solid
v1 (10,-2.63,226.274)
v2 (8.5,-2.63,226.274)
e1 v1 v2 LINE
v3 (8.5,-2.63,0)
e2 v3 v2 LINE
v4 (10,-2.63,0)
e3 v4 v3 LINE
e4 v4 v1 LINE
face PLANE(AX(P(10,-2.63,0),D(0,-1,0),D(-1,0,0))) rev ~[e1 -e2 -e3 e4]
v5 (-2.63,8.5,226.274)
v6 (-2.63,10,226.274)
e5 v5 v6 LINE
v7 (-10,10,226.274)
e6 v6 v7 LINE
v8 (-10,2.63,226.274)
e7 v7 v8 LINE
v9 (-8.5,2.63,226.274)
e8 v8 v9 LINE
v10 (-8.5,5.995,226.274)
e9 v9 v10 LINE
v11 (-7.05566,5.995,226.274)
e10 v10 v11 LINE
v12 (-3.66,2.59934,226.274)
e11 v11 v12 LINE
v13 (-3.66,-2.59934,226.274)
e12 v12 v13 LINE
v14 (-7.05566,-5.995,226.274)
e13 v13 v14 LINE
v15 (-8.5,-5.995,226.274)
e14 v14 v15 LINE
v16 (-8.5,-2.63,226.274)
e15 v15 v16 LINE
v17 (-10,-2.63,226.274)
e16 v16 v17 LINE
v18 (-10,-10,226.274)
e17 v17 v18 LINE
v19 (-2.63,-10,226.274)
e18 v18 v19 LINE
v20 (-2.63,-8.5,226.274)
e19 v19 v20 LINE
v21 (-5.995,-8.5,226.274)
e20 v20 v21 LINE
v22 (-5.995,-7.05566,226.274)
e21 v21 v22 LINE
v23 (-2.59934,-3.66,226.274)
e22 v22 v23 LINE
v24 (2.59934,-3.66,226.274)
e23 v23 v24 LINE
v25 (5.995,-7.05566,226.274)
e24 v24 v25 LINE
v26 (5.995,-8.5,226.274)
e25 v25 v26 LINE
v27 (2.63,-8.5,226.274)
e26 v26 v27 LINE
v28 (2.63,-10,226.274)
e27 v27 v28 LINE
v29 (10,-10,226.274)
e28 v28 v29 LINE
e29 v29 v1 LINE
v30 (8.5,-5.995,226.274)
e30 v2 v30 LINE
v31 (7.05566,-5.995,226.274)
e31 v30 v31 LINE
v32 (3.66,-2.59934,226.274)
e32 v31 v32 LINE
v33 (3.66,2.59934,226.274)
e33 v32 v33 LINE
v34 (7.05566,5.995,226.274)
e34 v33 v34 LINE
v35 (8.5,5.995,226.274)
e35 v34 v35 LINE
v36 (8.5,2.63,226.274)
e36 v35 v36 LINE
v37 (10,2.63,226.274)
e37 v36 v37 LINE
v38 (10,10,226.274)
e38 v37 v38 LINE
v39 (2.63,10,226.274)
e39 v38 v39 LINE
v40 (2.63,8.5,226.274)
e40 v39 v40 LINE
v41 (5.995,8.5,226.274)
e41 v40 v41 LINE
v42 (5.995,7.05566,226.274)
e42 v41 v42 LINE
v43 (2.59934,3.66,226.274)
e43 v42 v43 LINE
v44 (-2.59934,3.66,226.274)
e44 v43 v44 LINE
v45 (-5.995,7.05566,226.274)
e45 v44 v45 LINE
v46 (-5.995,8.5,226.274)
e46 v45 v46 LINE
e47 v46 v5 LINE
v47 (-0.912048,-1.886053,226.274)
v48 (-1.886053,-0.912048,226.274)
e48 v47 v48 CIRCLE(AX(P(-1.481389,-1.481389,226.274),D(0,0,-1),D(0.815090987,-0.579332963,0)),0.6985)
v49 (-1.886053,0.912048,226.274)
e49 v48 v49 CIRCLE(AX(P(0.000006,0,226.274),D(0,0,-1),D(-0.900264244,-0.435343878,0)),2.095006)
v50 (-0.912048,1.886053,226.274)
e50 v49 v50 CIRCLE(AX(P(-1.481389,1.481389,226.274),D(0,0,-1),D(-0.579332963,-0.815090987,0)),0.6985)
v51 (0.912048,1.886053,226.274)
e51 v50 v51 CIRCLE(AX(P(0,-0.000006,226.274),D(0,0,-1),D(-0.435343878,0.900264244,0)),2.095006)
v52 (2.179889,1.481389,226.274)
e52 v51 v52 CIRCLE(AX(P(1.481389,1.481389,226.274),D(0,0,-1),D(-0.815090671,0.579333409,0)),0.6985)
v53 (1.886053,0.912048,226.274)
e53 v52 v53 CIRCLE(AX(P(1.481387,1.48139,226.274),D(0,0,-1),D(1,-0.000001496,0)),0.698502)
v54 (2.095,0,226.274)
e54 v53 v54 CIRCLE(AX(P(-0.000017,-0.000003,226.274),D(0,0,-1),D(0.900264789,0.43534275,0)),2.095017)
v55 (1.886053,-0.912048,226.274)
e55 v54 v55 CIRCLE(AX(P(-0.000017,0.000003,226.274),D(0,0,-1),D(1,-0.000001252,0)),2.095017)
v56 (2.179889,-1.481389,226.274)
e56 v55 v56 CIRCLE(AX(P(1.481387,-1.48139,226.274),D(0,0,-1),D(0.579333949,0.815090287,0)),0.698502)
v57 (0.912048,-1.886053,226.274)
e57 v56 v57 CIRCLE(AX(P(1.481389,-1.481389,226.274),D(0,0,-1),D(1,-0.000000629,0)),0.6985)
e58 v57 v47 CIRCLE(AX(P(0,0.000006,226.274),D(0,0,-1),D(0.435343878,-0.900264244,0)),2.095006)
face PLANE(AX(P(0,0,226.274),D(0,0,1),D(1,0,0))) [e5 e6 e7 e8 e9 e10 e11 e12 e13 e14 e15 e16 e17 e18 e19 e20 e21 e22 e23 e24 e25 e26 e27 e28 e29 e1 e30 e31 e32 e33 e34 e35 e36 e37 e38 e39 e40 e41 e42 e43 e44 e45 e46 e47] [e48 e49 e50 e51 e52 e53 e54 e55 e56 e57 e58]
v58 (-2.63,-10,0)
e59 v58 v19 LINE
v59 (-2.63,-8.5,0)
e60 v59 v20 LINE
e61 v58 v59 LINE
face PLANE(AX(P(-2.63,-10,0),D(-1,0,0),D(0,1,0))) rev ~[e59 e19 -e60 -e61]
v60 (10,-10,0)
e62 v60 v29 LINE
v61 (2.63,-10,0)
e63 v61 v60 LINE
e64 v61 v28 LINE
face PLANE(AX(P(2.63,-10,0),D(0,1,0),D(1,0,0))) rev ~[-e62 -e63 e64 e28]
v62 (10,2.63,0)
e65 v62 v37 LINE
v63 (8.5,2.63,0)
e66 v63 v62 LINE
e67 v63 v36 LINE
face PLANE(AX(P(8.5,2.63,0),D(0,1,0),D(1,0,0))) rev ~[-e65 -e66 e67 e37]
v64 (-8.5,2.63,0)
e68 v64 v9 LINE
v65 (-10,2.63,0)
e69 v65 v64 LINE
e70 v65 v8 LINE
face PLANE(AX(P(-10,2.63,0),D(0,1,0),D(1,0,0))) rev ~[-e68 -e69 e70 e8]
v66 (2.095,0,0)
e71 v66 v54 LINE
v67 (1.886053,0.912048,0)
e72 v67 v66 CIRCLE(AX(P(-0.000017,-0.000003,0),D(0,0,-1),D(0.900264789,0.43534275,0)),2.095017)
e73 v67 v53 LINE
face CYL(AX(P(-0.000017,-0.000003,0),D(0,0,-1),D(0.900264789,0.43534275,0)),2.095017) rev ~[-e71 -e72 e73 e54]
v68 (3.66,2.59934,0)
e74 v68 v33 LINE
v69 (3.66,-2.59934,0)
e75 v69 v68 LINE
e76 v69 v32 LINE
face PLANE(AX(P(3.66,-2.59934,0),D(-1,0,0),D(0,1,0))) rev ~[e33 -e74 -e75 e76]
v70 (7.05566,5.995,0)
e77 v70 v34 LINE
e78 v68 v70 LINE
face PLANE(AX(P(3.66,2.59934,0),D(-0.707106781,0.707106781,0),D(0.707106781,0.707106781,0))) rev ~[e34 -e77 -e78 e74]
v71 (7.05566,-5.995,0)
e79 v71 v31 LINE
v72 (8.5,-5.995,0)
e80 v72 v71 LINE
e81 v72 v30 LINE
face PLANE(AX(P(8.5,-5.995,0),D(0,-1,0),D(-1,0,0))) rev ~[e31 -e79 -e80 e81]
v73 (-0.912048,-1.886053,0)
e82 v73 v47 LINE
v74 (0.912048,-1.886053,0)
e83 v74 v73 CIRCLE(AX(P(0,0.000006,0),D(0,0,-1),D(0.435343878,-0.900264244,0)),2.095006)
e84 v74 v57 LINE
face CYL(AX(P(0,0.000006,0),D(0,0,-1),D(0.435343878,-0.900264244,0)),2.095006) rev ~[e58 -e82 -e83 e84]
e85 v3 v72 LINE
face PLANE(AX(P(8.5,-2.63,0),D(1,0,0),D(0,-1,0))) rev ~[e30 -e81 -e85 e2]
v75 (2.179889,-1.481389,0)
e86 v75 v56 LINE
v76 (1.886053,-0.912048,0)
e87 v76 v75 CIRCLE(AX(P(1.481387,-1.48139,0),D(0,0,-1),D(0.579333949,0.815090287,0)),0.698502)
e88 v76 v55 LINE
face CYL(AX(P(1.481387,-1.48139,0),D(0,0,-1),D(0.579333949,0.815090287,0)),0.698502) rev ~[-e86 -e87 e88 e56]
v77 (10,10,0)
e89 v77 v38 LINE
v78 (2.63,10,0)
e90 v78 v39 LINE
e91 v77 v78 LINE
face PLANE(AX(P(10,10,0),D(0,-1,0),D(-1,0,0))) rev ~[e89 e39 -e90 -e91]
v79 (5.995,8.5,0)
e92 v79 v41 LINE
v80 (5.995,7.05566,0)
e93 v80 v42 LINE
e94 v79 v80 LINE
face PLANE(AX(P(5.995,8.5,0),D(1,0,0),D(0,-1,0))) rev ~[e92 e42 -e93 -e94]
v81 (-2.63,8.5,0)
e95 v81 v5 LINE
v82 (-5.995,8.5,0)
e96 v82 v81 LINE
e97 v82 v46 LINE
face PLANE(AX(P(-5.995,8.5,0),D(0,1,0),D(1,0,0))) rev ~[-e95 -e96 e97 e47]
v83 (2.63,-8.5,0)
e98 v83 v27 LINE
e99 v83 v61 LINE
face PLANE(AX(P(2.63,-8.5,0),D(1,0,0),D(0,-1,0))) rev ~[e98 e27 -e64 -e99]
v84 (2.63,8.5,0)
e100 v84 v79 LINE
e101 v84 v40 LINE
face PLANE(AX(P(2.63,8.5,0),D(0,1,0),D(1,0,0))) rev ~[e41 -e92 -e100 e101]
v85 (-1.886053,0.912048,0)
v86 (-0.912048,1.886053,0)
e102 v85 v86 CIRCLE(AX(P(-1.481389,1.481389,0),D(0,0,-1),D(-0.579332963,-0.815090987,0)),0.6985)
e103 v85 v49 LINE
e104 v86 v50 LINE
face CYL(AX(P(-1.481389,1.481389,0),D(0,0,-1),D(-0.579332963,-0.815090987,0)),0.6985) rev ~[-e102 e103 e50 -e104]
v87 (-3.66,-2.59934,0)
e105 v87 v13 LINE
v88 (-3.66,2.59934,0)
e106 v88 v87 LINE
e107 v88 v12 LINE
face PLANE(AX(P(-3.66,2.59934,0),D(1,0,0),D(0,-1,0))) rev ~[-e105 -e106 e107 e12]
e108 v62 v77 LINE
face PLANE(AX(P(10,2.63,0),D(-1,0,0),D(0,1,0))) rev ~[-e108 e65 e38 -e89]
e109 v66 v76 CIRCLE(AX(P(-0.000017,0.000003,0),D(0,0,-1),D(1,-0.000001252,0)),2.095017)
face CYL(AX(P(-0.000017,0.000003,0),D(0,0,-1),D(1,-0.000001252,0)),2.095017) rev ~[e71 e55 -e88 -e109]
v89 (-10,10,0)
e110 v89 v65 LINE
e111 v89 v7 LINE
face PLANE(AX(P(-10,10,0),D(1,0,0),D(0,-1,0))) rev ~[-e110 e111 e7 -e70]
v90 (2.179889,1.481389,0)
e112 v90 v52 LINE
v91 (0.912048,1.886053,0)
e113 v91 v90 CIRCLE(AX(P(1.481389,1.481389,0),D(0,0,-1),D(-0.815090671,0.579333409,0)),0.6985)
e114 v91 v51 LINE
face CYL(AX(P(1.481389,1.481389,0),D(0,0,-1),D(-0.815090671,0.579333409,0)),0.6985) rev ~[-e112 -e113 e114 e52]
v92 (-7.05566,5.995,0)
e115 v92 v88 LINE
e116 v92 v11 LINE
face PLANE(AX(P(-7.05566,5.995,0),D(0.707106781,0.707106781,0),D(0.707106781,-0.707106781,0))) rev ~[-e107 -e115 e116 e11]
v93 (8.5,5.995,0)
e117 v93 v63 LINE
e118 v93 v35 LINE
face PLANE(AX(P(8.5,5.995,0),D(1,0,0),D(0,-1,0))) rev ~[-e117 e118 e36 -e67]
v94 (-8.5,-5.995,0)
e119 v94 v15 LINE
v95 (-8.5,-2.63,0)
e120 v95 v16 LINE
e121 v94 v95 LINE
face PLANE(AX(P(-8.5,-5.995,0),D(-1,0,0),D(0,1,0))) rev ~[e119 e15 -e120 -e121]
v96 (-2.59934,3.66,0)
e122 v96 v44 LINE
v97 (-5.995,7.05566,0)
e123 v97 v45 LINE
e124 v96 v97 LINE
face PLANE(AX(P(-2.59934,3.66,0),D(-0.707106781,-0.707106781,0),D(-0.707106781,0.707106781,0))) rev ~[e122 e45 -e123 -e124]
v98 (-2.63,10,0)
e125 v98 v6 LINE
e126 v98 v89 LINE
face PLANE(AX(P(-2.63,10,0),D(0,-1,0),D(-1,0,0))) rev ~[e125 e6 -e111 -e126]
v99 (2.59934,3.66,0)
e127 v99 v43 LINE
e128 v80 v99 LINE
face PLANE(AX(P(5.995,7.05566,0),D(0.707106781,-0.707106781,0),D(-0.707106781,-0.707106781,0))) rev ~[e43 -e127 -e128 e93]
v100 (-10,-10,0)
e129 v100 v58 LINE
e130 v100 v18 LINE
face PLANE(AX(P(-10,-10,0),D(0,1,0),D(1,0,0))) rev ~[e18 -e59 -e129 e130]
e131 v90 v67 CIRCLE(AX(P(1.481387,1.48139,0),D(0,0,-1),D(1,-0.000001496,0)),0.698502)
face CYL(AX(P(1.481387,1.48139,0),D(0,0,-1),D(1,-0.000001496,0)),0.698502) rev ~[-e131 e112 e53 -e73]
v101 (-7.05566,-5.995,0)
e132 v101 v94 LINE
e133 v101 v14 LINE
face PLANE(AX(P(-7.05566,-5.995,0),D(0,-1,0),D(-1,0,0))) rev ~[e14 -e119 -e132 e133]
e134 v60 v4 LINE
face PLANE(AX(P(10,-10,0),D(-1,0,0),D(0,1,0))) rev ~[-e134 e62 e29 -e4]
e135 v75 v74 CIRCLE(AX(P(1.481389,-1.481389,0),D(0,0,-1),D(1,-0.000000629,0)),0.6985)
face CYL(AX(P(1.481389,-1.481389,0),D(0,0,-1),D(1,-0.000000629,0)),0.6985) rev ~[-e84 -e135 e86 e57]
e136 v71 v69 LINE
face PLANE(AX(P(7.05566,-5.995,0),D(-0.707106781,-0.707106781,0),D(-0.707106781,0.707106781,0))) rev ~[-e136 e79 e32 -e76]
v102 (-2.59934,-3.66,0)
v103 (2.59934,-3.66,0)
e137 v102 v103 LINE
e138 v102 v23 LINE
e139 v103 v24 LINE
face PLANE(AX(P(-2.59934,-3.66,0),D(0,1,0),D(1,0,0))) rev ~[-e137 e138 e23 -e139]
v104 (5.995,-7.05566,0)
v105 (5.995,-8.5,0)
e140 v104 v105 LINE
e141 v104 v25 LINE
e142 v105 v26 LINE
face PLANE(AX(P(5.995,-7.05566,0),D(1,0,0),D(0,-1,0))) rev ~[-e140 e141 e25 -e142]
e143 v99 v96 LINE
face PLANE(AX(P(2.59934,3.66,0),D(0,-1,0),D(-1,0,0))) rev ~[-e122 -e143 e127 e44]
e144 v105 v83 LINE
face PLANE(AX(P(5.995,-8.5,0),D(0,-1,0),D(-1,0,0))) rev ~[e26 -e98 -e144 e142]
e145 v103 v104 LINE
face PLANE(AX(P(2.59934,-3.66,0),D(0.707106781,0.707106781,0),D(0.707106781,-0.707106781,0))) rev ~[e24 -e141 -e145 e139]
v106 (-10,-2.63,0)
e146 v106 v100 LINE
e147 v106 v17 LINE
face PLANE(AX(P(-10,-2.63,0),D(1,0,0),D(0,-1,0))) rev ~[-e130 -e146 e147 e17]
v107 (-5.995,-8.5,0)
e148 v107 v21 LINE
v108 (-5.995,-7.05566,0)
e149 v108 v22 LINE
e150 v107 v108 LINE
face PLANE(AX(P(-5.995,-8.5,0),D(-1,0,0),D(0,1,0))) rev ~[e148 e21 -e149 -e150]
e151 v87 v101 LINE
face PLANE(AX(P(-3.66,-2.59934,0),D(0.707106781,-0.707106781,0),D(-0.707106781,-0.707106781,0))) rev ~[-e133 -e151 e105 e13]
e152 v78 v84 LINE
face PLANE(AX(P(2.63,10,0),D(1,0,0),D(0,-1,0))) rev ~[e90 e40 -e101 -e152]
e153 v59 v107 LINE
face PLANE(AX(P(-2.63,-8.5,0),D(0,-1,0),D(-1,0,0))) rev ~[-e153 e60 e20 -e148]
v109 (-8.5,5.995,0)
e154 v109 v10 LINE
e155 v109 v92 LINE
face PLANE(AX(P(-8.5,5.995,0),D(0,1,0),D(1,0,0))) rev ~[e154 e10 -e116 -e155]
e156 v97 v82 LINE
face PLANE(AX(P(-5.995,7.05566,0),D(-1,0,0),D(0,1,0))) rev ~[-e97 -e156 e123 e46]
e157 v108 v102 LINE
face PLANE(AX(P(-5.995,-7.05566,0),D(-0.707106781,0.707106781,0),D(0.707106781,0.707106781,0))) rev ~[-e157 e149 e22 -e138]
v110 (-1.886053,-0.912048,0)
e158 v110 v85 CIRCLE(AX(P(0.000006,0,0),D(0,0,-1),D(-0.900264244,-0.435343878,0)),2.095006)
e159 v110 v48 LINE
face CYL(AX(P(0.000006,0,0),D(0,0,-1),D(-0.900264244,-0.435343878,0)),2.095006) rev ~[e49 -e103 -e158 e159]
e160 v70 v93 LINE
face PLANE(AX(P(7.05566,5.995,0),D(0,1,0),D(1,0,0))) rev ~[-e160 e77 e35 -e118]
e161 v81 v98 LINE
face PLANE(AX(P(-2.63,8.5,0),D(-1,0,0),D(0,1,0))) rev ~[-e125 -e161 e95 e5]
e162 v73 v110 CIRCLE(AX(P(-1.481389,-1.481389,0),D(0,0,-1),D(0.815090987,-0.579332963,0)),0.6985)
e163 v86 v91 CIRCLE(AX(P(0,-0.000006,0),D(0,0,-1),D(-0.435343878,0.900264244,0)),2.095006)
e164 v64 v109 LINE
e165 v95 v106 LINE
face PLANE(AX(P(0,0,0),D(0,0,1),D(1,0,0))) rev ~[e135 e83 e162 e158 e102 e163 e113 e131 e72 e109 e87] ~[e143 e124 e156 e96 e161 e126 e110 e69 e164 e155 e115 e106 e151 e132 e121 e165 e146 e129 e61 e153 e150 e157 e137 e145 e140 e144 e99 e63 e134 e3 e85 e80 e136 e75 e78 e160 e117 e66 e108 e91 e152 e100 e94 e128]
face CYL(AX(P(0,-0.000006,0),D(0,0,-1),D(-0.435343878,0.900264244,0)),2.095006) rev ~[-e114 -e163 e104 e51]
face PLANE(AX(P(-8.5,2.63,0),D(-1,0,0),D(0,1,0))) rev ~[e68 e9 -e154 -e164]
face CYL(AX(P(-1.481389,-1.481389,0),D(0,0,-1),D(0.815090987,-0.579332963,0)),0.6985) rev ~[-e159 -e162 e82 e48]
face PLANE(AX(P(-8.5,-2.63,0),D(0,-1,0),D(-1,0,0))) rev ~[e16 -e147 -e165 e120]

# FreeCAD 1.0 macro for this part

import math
import FreeCAD as App
import Part
import Sketcher
Q = App.Units.Quantity


def add_polygon(sketch, points):
    """Adds a closed chain of lines whose ends are joined by coincident constraints."""
    first, n = sketch.GeometryCount, len(points)
    for a, b in zip(points, points[1:] + points[:1]):
        sketch.addGeometry(Part.LineSegment(App.Vector(*a, 0), App.Vector(*b, 0)), False)
    for i in range(n):
        sketch.addConstraint(Sketcher.Constraint("Coincident", first + i, 2, first + (i + 1) % n, 1))

doc = App.newDocument("Part")
body = doc.addObject("PartDesign::Body", "Body")

# Sketch on XY plane
sketch1 = doc.addObject("Sketcher::SketchObject", "Sketch")
body.addObject(sketch1)
sketch1.AttachmentSupport = (doc.XY_Plane, [""])
sketch1.MapMode = "FlatFace"
add_polygon(sketch1, [(10, 2.63), (10, 10), (2.63, 10), (2.63, 8.5), (5.995, 8.5), (5.995, 7.05566), (2.59934, 3.66), (-2.59934, 3.66), (-5.995, 7.05566), (-5.995, 8.5), (-2.63, 8.5), (-2.63, 10), (-10, 10), (-10, 2.63), (-8.5, 2.63), (-8.5, 5.995), (-7.05566, 5.995), (-3.66, 2.59934), (-3.66, -2.59934), (-7.05566, -5.995), (-8.5, -5.995), (-8.5, -2.63), (-10, -2.63), (-10, -10), (-2.63, -10), (-2.63, -8.5), (-5.995, -8.5), (-5.995, -7.05566), (-2.59934, -3.66), (2.59934, -3.66), (5.995, -7.05566), (5.995, -8.5), (2.63, -8.5), (2.63, -10), (10, -10), (10, -2.63), (8.5, -2.63), (8.5, -5.995), (7.05566, -5.995), (3.66, -2.59934), (3.66, 2.59934), (7.05566, 5.995), (8.5, 5.995), (8.5, 2.63)])  # lines 0-43
sketch1.addGeometry(Part.ArcOfCircle(Part.Circle(App.Vector(1.481387, 1.48139, 0), App.Vector(0, 0, 1), 0.698502), math.radians(-54.59629), math.radians(-0.000086)), False)  # 44
sketch1.addGeometry(Part.ArcOfCircle(Part.Circle(App.Vector(-0.000017, -0.000003, 0), App.Vector(0, 0, 1), 2.095017), math.radians(0.000072), math.radians(25.807106)), False)  # 45
sketch1.addGeometry(Part.ArcOfCircle(Part.Circle(App.Vector(-0.000017, 0.000003, 0), App.Vector(0, 0, 1), 2.095017), math.radians(-25.807106), math.radians(-0.000072)), False)  # 46
sketch1.addGeometry(Part.ArcOfCircle(Part.Circle(App.Vector(1.481387, -1.48139, 0), App.Vector(0, 0, 1), 0.698502), math.radians(0.000086), math.radians(54.59629)), False)  # 47
sketch1.addGeometry(Part.ArcOfCircle(Part.Circle(App.Vector(1.481389, -1.481389, 0), App.Vector(0, 0, 1), 0.6985), math.radians(-144.596328), math.radians(-0.000036)), False)  # 48
sketch1.addGeometry(Part.ArcOfCircle(Part.Circle(App.Vector(0, 0.000006, 0), App.Vector(0, 0, 1), 2.095006), math.radians(-115.807177), math.radians(-64.192823)), False)  # 49
sketch1.addGeometry(Part.ArcOfCircle(Part.Circle(App.Vector(-1.481389, -1.481389, 0), App.Vector(0, 0, 1), 0.6985), math.radians(125.40364), math.radians(324.59636)), False)  # 50
sketch1.addGeometry(Part.ArcOfCircle(Part.Circle(App.Vector(0.000006, 0, 0), App.Vector(0, 0, 1), 2.095006), math.radians(154.192823), math.radians(205.807177)), False)  # 51
sketch1.addGeometry(Part.ArcOfCircle(Part.Circle(App.Vector(-1.481389, 1.481389, 0), App.Vector(0, 0, 1), 0.6985), math.radians(35.40364), math.radians(234.59636)), False)  # 52
sketch1.addGeometry(Part.ArcOfCircle(Part.Circle(App.Vector(0, -0.000006, 0), App.Vector(0, 0, 1), 2.095006), math.radians(64.192823), math.radians(115.807177)), False)  # 53
sketch1.addGeometry(Part.ArcOfCircle(Part.Circle(App.Vector(1.481389, 1.481389, 0), App.Vector(0, 0, 1), 0.6985), math.radians(0.000036), math.radians(144.596328)), False)  # 54
sketch1.addConstraint([
    Sketcher.Constraint("Coincident", 44, 1, 45, 2),
    Sketcher.Constraint("Coincident", 45, 1, 46, 2),
    Sketcher.Constraint("Coincident", 46, 1, 47, 2),
    Sketcher.Constraint("Coincident", 47, 1, 48, 2),
    Sketcher.Constraint("Coincident", 48, 1, 49, 2),
    Sketcher.Constraint("Coincident", 49, 1, 50, 2),
    Sketcher.Constraint("Coincident", 50, 1, 51, 2),
    Sketcher.Constraint("Coincident", 51, 1, 52, 2),
    Sketcher.Constraint("Coincident", 52, 1, 53, 2),
    Sketcher.Constraint("Coincident", 53, 1, 54, 2),
    Sketcher.Constraint("Coincident", 54, 1, 44, 2),
    Sketcher.Constraint("Vertical", 0),
    Sketcher.Constraint("Horizontal", 1),
    Sketcher.Constraint("Vertical", 2),
    Sketcher.Constraint("Horizontal", 3),
    Sketcher.Constraint("Vertical", 4),
    Sketcher.Constraint("Horizontal", 6),
    Sketcher.Constraint("Vertical", 8),
    Sketcher.Constraint("Horizontal", 9),
    Sketcher.Constraint("Vertical", 10),
    Sketcher.Constraint("Horizontal", 11),
    Sketcher.Constraint("Vertical", 12),
    Sketcher.Constraint("Horizontal", 13),
    Sketcher.Constraint("Vertical", 14),
    Sketcher.Constraint("Horizontal", 15),
    Sketcher.Constraint("Vertical", 17),
    Sketcher.Constraint("Horizontal", 19),
    Sketcher.Constraint("Vertical", 20),
    Sketcher.Constraint("Horizontal", 21),
    Sketcher.Constraint("Vertical", 22),
    Sketcher.Constraint("Horizontal", 23),
    Sketcher.Constraint("Vertical", 24),
    Sketcher.Constraint("Horizontal", 25),
    Sketcher.Constraint("Vertical", 26),
    Sketcher.Constraint("Horizontal", 28),
    Sketcher.Constraint("Vertical", 30),
    Sketcher.Constraint("Horizontal", 31),
    Sketcher.Constraint("Vertical", 32),
    Sketcher.Constraint("Horizontal", 33),
    Sketcher.Constraint("Vertical", 34),
    Sketcher.Constraint("Horizontal", 35),
    Sketcher.Constraint("Vertical", 36),
    Sketcher.Constraint("Horizontal", 37),
    Sketcher.Constraint("Vertical", 39),
    Sketcher.Constraint("Horizontal", 41),
    Sketcher.Constraint("Vertical", 42),
    Sketcher.Constraint("Horizontal", 43),
    Sketcher.Constraint("Coincident", 49, 3, -1, 1),
    Sketcher.Constraint("Coincident", 51, 3, -1, 1),
    Sketcher.Constraint("Coincident", 53, 3, -1, 1),
    Sketcher.Constraint("Coincident", 46, 3, 45, 3),
    Sketcher.Constraint("Coincident", 48, 3, 47, 3),
    Sketcher.Constraint("Coincident", 54, 3, 44, 3),
    Sketcher.Constraint("Equal", 44, 47),
    Sketcher.Constraint("Equal", 48, 50),
    Sketcher.Constraint("Equal", 49, 51),
    Sketcher.Constraint("Equal", 50, 52),
    Sketcher.Constraint("Equal", 51, 53),
    Sketcher.Constraint("Symmetric", 44, 3, 50, 3, -1, 1),
    Sketcher.Constraint("Symmetric", 47, 3, 52, 3, -1, 1),
    Sketcher.Constraint("Symmetric", 0, 2, 22, 2, -1, 1),
    Sketcher.Constraint("Symmetric", 2, 2, 24, 2, -1, 1),
    Sketcher.Constraint("Symmetric", 4, 2, 26, 2, -1, 1),
    Sketcher.Constraint("Symmetric", 5, 2, 27, 2, -1, 1),
    Sketcher.Constraint("Symmetric", 7, 2, 29, 2, -1, 1),
    Sketcher.Constraint("Symmetric", 9, 2, 31, 2, -1, 1),
    Sketcher.Constraint("Symmetric", 11, 2, 33, 2, -1, 1),
    Sketcher.Constraint("Symmetric", 13, 2, 35, 2, -1, 1),
    Sketcher.Constraint("Symmetric", 15, 2, 37, 2, -1, 1),
    Sketcher.Constraint("Symmetric", 16, 2, 38, 2, -1, 1),
    Sketcher.Constraint("Symmetric", 18, 2, 40, 2, -1, 1),
    Sketcher.Constraint("Symmetric", 20, 2, 42, 2, -1, 1),
    Sketcher.Constraint("Symmetric", 47, 3, 50, 3, -2),
    Sketcher.Constraint("Symmetric", 4, 2, 7, 2, -2),
    Sketcher.Constraint("Symmetric", 2, 2, 9, 2, -2),
    Sketcher.Constraint("Symmetric", 0, 2, 11, 2, -2),
    Sketcher.Constraint("Symmetric", 20, 2, 35, 2, -2),
    Sketcher.Constraint("Symmetric", 18, 2, 37, 2, -2),
    Sketcher.Constraint("PointOnObject", 45, 1, -1),
    Sketcher.Constraint("Perpendicular", 5, 7),
    Sketcher.Constraint("Parallel", 7, 16),
    Sketcher.Constraint("Perpendicular", 16, 18),
    Sketcher.Constraint("Perpendicular", 27, 29),
    Sketcher.Constraint("Perpendicular", 38, 40),
    Sketcher.Constraint("Horizontal", 17, 2, 38, 2),
    Sketcher.Constraint("Horizontal", 50, 3, 47, 1),
    Sketcher.Constraint("Horizontal", 46, 1, 50, 1),
    Sketcher.Constraint("Horizontal", 44, 1, 51, 1),
    Sketcher.Constraint("Horizontal", 52, 3, 54, 1),
    Sketcher.Constraint("Equal", 33, 0),
    Sketcher.Constraint("Equal", 43, 2),
    Sketcher.Constraint("Equal", 41, 4),
    Sketcher.Constraint("Equal", 31, 14),
    Sketcher.Constraint("Equal", 28, 17),
    Sketcher.Constraint("Equal", 7, 16),
    Sketcher.Constraint("Radius", 44, Q("0.0275001 in")),
    Sketcher.Constraint("DistanceX", 1, 2, 1, 1, 7.37),
    Sketcher.Constraint("DistanceX", 3, 1, 3, 2, 3.365),
    Sketcher.Constraint("DistanceX", 13, 1, 13, 2, 1.5),
    Sketcher.Constraint("Radius", 45, 2.095017),
    Sketcher.Constraint("Radius", 49, 2.095006),
    Sketcher.Constraint("DistanceX", 6, 2, 6, 1, 5.19868),
    Sketcher.Constraint("DistanceX", 15, 1, 15, 2, 1.44434),
    Sketcher.Constraint("DistanceX", -1, 1, 0, 2, 10.0),
    Sketcher.Constraint("DistanceY", -1, 1, 44, 3, 1.48139),
    Sketcher.Constraint("DistanceX", -1, 1, 48, 3, 1.481389),
])
pad1 = doc.addObject("PartDesign::Pad", "Pad")
body.addObject(pad1)
pad1.Profile = sketch1
pad1.Length = 226.274

doc.recompute()
